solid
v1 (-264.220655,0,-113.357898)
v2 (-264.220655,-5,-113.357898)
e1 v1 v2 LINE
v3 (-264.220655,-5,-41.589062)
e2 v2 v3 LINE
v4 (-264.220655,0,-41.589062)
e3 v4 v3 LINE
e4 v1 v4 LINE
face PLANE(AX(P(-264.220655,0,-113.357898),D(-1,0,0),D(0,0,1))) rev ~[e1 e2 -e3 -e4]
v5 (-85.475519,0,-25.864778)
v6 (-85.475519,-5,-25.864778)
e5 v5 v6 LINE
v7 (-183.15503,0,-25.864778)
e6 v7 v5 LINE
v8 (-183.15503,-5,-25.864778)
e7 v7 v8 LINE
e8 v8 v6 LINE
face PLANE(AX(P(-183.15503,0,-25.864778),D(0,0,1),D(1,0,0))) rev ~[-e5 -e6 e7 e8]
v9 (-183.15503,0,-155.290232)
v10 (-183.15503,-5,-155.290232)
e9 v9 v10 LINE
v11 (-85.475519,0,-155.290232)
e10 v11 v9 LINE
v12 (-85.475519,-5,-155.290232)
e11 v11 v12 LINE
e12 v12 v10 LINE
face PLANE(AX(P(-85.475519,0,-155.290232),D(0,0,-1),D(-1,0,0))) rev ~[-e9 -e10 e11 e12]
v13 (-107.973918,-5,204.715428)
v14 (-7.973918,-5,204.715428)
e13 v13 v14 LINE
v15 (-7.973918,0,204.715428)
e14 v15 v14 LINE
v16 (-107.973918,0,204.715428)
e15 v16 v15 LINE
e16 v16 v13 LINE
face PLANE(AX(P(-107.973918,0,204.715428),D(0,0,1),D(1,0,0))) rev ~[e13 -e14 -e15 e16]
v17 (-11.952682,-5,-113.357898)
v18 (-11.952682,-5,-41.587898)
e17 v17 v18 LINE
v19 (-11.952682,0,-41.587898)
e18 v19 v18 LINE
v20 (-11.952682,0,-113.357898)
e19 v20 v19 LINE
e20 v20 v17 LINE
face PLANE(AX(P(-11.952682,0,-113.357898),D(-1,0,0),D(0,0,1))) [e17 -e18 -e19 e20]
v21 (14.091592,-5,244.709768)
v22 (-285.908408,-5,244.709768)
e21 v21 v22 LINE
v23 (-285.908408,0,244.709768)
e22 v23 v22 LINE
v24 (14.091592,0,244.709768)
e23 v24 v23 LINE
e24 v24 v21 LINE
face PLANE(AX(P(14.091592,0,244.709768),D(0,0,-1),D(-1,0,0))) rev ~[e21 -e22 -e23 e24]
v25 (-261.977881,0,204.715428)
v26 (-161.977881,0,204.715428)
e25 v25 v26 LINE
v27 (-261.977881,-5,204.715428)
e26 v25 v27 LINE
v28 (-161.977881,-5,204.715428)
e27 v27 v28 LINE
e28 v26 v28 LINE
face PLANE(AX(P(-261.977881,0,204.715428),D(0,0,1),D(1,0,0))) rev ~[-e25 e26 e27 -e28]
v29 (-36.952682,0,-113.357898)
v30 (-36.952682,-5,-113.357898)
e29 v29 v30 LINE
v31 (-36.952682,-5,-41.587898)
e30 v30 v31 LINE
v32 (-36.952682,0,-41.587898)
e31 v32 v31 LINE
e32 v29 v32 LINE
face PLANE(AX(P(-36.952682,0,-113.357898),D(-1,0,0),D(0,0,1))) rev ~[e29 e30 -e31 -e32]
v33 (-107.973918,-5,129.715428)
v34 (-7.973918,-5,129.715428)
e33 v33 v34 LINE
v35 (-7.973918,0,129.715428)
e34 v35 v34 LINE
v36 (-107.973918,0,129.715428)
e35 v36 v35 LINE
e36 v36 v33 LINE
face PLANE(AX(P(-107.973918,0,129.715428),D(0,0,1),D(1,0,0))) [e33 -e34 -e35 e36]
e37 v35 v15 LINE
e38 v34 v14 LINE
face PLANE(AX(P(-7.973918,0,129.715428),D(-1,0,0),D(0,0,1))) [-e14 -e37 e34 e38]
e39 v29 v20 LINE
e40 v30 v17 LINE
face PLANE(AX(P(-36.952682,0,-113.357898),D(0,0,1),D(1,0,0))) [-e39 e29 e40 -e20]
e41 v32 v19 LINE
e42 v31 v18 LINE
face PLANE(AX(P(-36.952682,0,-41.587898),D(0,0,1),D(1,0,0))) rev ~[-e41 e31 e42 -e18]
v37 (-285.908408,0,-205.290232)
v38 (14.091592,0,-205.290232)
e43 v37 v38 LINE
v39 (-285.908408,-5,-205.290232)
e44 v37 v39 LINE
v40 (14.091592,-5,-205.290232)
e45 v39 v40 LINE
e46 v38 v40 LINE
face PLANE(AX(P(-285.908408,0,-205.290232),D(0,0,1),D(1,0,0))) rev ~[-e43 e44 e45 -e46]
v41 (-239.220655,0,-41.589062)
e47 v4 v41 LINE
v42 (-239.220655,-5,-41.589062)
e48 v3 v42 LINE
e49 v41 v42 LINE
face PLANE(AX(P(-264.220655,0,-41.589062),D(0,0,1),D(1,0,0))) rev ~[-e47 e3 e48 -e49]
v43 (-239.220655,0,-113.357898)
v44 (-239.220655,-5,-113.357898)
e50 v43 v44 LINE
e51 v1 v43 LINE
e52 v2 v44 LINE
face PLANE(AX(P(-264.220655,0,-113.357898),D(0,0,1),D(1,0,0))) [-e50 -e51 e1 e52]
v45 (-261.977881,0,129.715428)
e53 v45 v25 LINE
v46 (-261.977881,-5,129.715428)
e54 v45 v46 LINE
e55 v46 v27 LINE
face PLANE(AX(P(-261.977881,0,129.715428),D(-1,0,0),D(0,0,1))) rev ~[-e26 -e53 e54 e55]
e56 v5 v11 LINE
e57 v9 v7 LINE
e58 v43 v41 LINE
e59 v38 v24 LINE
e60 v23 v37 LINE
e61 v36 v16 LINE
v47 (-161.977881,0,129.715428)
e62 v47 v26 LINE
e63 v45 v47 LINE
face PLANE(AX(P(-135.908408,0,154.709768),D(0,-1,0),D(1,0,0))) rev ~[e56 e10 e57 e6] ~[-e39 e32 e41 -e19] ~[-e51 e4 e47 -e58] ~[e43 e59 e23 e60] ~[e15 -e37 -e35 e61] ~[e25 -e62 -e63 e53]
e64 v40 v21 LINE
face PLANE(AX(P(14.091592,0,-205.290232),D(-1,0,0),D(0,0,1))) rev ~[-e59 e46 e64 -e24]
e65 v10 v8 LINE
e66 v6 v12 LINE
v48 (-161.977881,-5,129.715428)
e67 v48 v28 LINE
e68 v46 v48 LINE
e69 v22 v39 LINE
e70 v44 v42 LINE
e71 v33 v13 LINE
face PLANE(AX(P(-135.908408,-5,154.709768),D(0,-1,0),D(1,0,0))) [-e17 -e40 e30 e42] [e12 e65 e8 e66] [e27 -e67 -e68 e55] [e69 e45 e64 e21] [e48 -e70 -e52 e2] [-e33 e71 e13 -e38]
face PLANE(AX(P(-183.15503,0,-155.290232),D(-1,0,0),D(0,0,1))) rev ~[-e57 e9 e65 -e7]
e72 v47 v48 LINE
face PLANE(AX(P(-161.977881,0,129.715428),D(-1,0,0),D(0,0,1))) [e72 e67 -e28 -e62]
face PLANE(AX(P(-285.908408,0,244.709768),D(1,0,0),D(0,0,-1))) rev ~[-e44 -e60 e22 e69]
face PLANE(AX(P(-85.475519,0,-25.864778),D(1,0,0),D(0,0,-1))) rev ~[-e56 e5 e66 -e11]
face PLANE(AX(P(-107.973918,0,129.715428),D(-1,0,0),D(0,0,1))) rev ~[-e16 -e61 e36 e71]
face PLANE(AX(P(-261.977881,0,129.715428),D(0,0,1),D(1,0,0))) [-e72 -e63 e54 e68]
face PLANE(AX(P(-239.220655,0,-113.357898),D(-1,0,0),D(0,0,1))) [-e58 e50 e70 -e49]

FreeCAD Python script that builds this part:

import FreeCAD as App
import Part
import Sketcher

V = App.Vector

doc = App.newDocument("Part")
body = doc.addObject("PartDesign::Body", "Body")

# Sketch on XZ plane
sketch1 = body.newObject("Sketcher::SketchObject", "Sketch")
sketch1.AttachmentSupport = (doc.getObject("XZ_Plane"), [""])
sketch1.MapMode = "FlatFace"
sketch1.addGeometry(Part.LineSegment(V(14, 245, 0), V(-286, 245, 0)), False)
sketch1.addGeometry(Part.LineSegment(V(-286, 245, 0), V(-286, -205, 0)), False)
sketch1.addGeometry(Part.LineSegment(V(-286, -205, 0), V(14, -205, 0)), False)
sketch1.addGeometry(Part.LineSegment(V(14, -205, 0), V(14, 245, 0)), False)
sketch1.addGeometry(Part.LineSegment(V(-239, -113, 0), V(-264, -113, 0)), False)
sketch1.addGeometry(Part.LineSegment(V(-264, -113, 0), V(-264, -42, 0)), False)
sketch1.addGeometry(Part.LineSegment(V(-264, -42, 0), V(-239, -42, 0)), False)
sketch1.addGeometry(Part.LineSegment(V(-239, -42, 0), V(-239, -113, 0)), False)
sketch1.addGeometry(Part.LineSegment(V(-85, -155, 0), V(-183, -155, 0)), False)
sketch1.addGeometry(Part.LineSegment(V(-183, -155, 0), V(-183, -26, 0)), False)
sketch1.addGeometry(Part.LineSegment(V(-183, -26, 0), V(-85, -26, 0)), False)
sketch1.addGeometry(Part.LineSegment(V(-85, -26, 0), V(-85, -155, 0)), False)
sketch1.addGeometry(Part.LineSegment(V(-12, -113, 0), V(-37, -113, 0)), False)
sketch1.addGeometry(Part.LineSegment(V(-37, -113, 0), V(-37, -42, 0)), False)
sketch1.addGeometry(Part.LineSegment(V(-37, -42, 0), V(-12, -42, 0)), False)
sketch1.addGeometry(Part.LineSegment(V(-12, -42, 0), V(-12, -113, 0)), False)
sketch1.addGeometry(Part.LineSegment(V(-162, 130, 0), V(-262, 130, 0)), False)
sketch1.addGeometry(Part.LineSegment(V(-262, 130, 0), V(-262, 205, 0)), False)
sketch1.addGeometry(Part.LineSegment(V(-262, 205, 0), V(-162, 205, 0)), False)
sketch1.addGeometry(Part.LineSegment(V(-162, 205, 0), V(-162, 130, 0)), False)
sketch1.addGeometry(Part.LineSegment(V(-8, 130, 0), V(-108, 130, 0)), False)
sketch1.addGeometry(Part.LineSegment(V(-108, 130, 0), V(-108, 205, 0)), False)
sketch1.addGeometry(Part.LineSegment(V(-108, 205, 0), V(-8, 205, 0)), False)
sketch1.addGeometry(Part.LineSegment(V(-8, 205, 0), V(-8, 130, 0)), False)
sketch1.addConstraint(Sketcher.Constraint("Coincident", 0, 2, 1, 1))
sketch1.addConstraint(Sketcher.Constraint("Coincident", 1, 2, 2, 1))
sketch1.addConstraint(Sketcher.Constraint("Coincident", 2, 2, 3, 1))
sketch1.addConstraint(Sketcher.Constraint("Coincident", 3, 2, 0, 1))
sketch1.addConstraint(Sketcher.Constraint("Coincident", 4, 2, 5, 1))
sketch1.addConstraint(Sketcher.Constraint("Coincident", 5, 2, 6, 1))
sketch1.addConstraint(Sketcher.Constraint("Coincident", 6, 2, 7, 1))
sketch1.addConstraint(Sketcher.Constraint("Coincident", 7, 2, 4, 1))
sketch1.addConstraint(Sketcher.Constraint("Coincident", 8, 2, 9, 1))
sketch1.addConstraint(Sketcher.Constraint("Coincident", 9, 2, 10, 1))
sketch1.addConstraint(Sketcher.Constraint("Coincident", 10, 2, 11, 1))
sketch1.addConstraint(Sketcher.Constraint("Coincident", 11, 2, 8, 1))
sketch1.addConstraint(Sketcher.Constraint("Coincident", 12, 2, 13, 1))
sketch1.addConstraint(Sketcher.Constraint("Coincident", 13, 2, 14, 1))
sketch1.addConstraint(Sketcher.Constraint("Coincident", 14, 2, 15, 1))
sketch1.addConstraint(Sketcher.Constraint("Coincident", 15, 2, 12, 1))
sketch1.addConstraint(Sketcher.Constraint("Coincident", 16, 2, 17, 1))
sketch1.addConstraint(Sketcher.Constraint("Coincident", 17, 2, 18, 1))
sketch1.addConstraint(Sketcher.Constraint("Coincident", 18, 2, 19, 1))
sketch1.addConstraint(Sketcher.Constraint("Coincident", 19, 2, 16, 1))
sketch1.addConstraint(Sketcher.Constraint("Coincident", 20, 2, 21, 1))
sketch1.addConstraint(Sketcher.Constraint("Coincident", 21, 2, 22, 1))
sketch1.addConstraint(Sketcher.Constraint("Coincident", 22, 2, 23, 1))
sketch1.addConstraint(Sketcher.Constraint("Coincident", 23, 2, 20, 1))
sketch1.addConstraint(Sketcher.Constraint("Horizontal", 0))
sketch1.addConstraint(Sketcher.Constraint("Vertical", 1))
sketch1.addConstraint(Sketcher.Constraint("Horizontal", 2))
sketch1.addConstraint(Sketcher.Constraint("Vertical", 3))
sketch1.addConstraint(Sketcher.Constraint("Horizontal", 4))
sketch1.addConstraint(Sketcher.Constraint("Vertical", 5))
sketch1.addConstraint(Sketcher.Constraint("Horizontal", 6))
sketch1.addConstraint(Sketcher.Constraint("Vertical", 7))
sketch1.addConstraint(Sketcher.Constraint("Horizontal", 8))
sketch1.addConstraint(Sketcher.Constraint("Vertical", 9))
sketch1.addConstraint(Sketcher.Constraint("Horizontal", 10))
sketch1.addConstraint(Sketcher.Constraint("Vertical", 11))
sketch1.addConstraint(Sketcher.Constraint("Horizontal", 12))
sketch1.addConstraint(Sketcher.Constraint("Vertical", 13))
sketch1.addConstraint(Sketcher.Constraint("Horizontal", 14))
sketch1.addConstraint(Sketcher.Constraint("Vertical", 15))
sketch1.addConstraint(Sketcher.Constraint("Horizontal", 16))
sketch1.addConstraint(Sketcher.Constraint("Vertical", 17))
sketch1.addConstraint(Sketcher.Constraint("Horizontal", 18))
sketch1.addConstraint(Sketcher.Constraint("Vertical", 19))
sketch1.addConstraint(Sketcher.Constraint("Horizontal", 20))
sketch1.addConstraint(Sketcher.Constraint("Vertical", 21))
sketch1.addConstraint(Sketcher.Constraint("Horizontal", 22))
sketch1.addConstraint(Sketcher.Constraint("Vertical", 23))
sketch1.addConstraint(Sketcher.Constraint("Horizontal", 7, 2, 12, 2))
sketch1.addConstraint(Sketcher.Constraint("Horizontal", 19, 2, 20, 2))
sketch1.addConstraint(Sketcher.Constraint("Horizontal", 18, 2, 21, 2))
sketch1.addConstraint(Sketcher.Constraint("Equal", 6, 12))
sketch1.addConstraint(Sketcher.Constraint("Equal", 18, 20))
sketch1.addConstraint(Sketcher.Constraint("DistanceX", 0, 2, 0, 1, 300.0))
sketch1.addConstraint(Sketcher.Constraint("DistanceX", 4, 2, 4, 1, 25.0))
sketch1.addConstraint(Sketcher.Constraint("DistanceX", 16, 2, 16, 1, 100.0))
sketch1.addConstraint(Sketcher.Constraint("DistanceY", 1, 2, 1, 1, 450.0))
sketch1.addConstraint(Sketcher.Constraint("DistanceY", 17, 1, 17, 2, 75.0))
sketch1.addConstraint(Sketcher.Constraint("DistanceY", 1, 2, 8, 2, 50.0))
sketch1.addConstraint(Sketcher.Constraint("DistanceY", 13, 1, 13, 2, 71.77))
sketch1.addConstraint(Sketcher.Constraint("DistanceX", 8, 2, 8, 1, 97.679511))
sketch1.addConstraint(Sketcher.Constraint("DistanceY", 12, 2, -1, 1, 113.357898))
sketch1.addConstraint(Sketcher.Constraint("DistanceX", 20, 2, 10, 2, 22.498399))
sketch1.addConstraint(Sketcher.Constraint("DistanceY", 5, 1, 5, 2, 71.768835))
sketch1.addConstraint(Sketcher.Constraint("DistanceY", 9, 1, 9, 2, 129.425454))
sketch1.addConstraint(Sketcher.Constraint("DistanceX", 0, 2, -1, 1, 285.908408))
sketch1.addConstraint(Sketcher.Constraint("DistanceY", -1, 1, 0, 2, 244.709768))
sketch1.addConstraint(Sketcher.Constraint("DistanceX", 8, 2, -1, 1, 183.15503))
sketch1.addConstraint(Sketcher.Constraint("DistanceX", 14, 2, -1, 1, 11.952682))
sketch1.addConstraint(Sketcher.Constraint("DistanceX", 16, 2, -1, 1, 261.977881))
sketch1.addConstraint(Sketcher.Constraint("DistanceY", -1, 1, 16, 2, 129.715428))
sketch1.addConstraint(Sketcher.Constraint("DistanceX", 4, 2, -1, 1, 264.220655))
pad1 = body.newObject("PartDesign::Pad", "Pad")
pad1.Profile = sketch1
pad1.Length = 5

doc.recompute()
